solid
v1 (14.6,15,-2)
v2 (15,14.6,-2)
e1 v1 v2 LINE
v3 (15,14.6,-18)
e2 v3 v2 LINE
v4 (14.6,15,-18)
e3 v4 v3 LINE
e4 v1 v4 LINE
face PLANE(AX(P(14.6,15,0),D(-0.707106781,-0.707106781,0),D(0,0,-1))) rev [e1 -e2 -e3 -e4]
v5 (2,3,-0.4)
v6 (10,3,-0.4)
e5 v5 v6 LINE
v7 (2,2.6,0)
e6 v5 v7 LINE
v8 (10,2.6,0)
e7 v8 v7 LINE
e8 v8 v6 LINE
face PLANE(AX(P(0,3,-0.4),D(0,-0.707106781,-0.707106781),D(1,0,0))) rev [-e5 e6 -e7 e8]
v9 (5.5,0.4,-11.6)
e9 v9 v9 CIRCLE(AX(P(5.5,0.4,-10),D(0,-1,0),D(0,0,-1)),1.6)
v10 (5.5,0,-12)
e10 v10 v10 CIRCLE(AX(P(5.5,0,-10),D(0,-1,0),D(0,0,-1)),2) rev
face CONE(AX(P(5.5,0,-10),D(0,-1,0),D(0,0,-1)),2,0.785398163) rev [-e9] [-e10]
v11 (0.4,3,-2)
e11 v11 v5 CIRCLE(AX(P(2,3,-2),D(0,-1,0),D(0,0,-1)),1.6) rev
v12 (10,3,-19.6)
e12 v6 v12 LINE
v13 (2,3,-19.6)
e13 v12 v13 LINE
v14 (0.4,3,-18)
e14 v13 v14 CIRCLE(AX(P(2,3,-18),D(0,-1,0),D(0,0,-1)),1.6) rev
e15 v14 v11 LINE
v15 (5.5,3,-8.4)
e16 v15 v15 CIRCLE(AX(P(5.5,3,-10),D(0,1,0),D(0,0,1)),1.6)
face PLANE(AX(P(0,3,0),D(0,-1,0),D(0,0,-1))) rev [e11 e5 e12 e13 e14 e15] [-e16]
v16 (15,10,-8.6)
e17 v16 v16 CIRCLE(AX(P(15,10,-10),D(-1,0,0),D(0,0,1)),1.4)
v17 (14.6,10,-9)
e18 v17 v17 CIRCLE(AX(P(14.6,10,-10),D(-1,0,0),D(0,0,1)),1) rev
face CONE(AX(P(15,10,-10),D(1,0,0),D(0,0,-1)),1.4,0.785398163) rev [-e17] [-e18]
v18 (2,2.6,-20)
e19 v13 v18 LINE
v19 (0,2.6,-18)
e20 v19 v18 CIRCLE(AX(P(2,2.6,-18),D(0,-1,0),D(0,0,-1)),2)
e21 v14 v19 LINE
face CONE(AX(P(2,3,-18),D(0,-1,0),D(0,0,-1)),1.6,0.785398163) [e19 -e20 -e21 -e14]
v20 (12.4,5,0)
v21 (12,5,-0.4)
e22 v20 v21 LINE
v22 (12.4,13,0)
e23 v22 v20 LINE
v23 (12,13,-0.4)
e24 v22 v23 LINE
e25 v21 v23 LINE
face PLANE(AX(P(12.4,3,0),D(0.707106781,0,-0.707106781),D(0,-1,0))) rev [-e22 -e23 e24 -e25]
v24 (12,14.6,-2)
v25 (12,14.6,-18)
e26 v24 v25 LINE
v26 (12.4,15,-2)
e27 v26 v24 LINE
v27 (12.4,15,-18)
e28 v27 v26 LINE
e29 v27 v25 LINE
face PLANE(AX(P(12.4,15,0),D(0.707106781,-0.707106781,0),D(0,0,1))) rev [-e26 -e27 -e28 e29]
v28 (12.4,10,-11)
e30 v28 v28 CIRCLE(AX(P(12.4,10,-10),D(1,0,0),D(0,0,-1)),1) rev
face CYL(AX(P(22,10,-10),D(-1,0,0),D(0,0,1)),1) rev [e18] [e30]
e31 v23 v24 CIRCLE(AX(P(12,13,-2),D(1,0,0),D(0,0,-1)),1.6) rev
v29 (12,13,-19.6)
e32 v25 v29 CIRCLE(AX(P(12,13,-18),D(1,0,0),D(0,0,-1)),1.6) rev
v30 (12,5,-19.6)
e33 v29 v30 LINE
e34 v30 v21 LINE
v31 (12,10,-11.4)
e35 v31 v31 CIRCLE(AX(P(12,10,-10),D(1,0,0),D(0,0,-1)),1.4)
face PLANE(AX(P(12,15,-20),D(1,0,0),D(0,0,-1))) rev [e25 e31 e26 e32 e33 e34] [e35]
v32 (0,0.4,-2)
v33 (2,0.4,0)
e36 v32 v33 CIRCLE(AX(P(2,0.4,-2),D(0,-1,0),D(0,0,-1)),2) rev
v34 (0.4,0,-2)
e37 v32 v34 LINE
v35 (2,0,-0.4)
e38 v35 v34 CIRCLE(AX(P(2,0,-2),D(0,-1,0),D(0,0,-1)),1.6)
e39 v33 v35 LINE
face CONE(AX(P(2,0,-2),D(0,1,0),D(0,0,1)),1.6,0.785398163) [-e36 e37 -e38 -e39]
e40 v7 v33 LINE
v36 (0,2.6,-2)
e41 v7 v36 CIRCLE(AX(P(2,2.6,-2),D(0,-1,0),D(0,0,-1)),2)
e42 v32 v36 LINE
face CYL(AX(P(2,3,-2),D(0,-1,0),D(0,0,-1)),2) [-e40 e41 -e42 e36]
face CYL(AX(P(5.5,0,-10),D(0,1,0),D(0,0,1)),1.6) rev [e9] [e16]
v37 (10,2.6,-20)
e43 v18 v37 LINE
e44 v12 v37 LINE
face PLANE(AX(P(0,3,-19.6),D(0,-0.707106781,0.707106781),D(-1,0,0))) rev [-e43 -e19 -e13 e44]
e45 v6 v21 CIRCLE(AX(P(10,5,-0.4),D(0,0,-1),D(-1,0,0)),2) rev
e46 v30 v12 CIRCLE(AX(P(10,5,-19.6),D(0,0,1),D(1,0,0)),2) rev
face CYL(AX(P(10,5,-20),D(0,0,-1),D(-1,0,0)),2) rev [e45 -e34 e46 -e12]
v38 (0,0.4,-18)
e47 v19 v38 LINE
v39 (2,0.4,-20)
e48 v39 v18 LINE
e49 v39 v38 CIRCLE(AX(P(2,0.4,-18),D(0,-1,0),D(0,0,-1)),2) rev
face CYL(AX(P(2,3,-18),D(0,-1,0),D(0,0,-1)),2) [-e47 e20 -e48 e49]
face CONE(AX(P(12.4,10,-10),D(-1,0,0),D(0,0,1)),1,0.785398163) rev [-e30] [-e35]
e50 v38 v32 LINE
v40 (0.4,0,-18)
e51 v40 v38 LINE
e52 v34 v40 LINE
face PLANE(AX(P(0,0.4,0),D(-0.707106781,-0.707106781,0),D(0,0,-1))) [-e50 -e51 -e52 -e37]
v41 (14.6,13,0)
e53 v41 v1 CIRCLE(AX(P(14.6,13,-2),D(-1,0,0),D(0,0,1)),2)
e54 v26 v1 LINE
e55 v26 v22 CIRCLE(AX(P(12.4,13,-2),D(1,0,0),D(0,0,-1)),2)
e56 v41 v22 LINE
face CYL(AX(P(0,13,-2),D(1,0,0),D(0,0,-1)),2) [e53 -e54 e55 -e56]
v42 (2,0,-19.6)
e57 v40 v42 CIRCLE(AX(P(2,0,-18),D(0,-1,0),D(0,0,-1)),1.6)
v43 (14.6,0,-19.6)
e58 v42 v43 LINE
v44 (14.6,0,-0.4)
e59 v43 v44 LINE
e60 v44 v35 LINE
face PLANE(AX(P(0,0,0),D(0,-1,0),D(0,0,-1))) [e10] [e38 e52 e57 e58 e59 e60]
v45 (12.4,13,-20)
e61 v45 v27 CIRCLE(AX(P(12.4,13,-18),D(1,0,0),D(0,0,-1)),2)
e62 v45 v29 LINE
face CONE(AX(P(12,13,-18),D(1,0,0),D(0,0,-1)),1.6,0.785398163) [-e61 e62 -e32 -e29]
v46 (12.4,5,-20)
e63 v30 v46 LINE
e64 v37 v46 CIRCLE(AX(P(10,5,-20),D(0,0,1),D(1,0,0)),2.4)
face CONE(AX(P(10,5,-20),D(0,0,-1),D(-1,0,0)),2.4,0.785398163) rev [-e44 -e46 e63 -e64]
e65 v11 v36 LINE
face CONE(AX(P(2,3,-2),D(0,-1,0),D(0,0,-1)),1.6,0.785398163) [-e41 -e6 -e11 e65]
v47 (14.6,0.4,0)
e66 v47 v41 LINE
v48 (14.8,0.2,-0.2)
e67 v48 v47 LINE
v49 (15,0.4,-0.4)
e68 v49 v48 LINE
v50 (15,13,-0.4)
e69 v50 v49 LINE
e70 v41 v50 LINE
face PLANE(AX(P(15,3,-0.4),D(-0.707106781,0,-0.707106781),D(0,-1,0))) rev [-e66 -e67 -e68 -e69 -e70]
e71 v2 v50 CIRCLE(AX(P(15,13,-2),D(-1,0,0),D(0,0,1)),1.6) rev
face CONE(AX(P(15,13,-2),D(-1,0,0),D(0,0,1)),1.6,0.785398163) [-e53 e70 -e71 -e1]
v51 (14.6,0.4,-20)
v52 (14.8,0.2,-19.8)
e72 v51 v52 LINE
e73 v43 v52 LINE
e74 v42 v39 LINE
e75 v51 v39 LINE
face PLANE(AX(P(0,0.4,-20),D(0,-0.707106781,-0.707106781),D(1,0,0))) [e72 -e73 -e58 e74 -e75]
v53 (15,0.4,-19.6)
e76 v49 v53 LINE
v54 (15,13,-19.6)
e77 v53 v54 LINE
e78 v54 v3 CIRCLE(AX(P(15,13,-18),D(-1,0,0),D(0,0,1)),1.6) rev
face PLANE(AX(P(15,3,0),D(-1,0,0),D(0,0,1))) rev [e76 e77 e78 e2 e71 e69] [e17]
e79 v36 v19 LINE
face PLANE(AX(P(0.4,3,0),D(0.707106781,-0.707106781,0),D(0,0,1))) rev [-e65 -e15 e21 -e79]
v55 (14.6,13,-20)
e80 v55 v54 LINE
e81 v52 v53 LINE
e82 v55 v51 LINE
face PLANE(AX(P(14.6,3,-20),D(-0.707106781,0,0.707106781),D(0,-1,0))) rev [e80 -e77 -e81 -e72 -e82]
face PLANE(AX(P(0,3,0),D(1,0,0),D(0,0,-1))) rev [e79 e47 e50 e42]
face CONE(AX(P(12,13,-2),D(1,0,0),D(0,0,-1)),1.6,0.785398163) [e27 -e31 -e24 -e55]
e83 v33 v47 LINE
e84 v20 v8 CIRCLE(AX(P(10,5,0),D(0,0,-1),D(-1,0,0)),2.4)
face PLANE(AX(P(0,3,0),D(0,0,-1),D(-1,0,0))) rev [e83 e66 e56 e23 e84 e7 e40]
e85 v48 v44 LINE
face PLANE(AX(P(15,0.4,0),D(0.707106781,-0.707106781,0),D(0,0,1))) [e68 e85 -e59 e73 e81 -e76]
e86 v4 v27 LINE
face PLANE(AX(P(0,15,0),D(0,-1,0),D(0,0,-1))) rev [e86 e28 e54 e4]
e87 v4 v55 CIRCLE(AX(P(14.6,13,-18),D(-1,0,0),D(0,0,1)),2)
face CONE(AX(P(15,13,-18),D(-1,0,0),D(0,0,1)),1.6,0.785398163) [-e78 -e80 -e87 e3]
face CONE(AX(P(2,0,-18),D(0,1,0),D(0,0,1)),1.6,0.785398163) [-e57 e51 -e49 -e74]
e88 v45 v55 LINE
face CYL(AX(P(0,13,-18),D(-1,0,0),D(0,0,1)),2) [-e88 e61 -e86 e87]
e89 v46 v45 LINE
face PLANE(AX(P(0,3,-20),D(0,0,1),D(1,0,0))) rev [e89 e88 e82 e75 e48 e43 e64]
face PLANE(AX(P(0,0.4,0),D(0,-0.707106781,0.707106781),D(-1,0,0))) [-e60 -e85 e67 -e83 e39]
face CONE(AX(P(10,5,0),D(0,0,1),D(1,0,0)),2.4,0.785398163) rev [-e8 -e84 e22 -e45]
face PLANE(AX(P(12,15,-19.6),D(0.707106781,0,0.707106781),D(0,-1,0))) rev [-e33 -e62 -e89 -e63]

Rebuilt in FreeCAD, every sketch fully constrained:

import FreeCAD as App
import Part
import Sketcher
from FreeCAD import Vector
Q = App.Units.Quantity


def edges_at(feature, points):
    """Names of the edges that pass closest to the given points."""
    edges = feature.Shape.Edges
    near = lambda p: min(range(len(edges)), key=lambda i: edges[i].distToShape(Part.Vertex(*p))[0])
    return sorted({f"Edge{near(p) + 1}" for p in points})

doc = App.newDocument("Part")
body = doc.addObject("PartDesign::Body", "Body")

sketch1 = body.newObject("Sketcher::SketchObject", "Sketch")
sketch1.AttachmentSupport = (doc.getObject("XZ_Plane"), [""])
sketch1.MapMode = "FlatFace"
sketch1.addGeometry([
    Part.LineSegment(Vector(0, -20, 0), Vector(0, 0, 0)),
    Part.LineSegment(Vector(0, 0, 0), Vector(15, 0, 0)),
    Part.LineSegment(Vector(15, 0, 0), Vector(15, -20, 0)),
    Part.LineSegment(Vector(15, -20, 0), Vector(0, -20, 0)),
], False)
sketch1.addConstraint([
    Sketcher.Constraint("Coincident", 0, 2, 1, 1),
    Sketcher.Constraint("Coincident", 1, 2, 2, 1),
    Sketcher.Constraint("Coincident", 2, 2, 3, 1),
    Sketcher.Constraint("Coincident", 3, 2, 0, 1),
    Sketcher.Constraint("Vertical", 0),
    Sketcher.Constraint("Horizontal", 1),
    Sketcher.Constraint("Vertical", 2),
    Sketcher.Constraint("Horizontal", 3),
    Sketcher.Constraint("Coincident", 0, 2, -1, 1),
    Sketcher.Constraint("DistanceX", 1, 1, 1, 2, Q("15 mm")),
    Sketcher.Constraint("DistanceY", 0, 1, 0, 2, Q("20 mm")),
])
pad1 = body.newObject("PartDesign::Pad", "Pad")
pad1.Profile = sketch1
pad1.Length = 3
pad1.Reversed = True

sketch2 = body.newObject("Sketcher::SketchObject", "Sketch001")
sketch2.AttachmentSupport = (doc.getObject("XZ_Plane"), [""])
sketch2.MapMode = "FlatFace"
sketch2.AttachmentOffset = App.Placement(Vector(0, 0, -3), App.Rotation())
sketch2.addGeometry(Part.Circle(Vector(5.5, -10, 0), Vector(0, 0, 1), 1.6), False)
sketch2.addConstraint([
    Sketcher.Constraint("Diameter", 0, Q("3.2 mm")),
    Sketcher.Constraint("DistanceY", 0, 3, -1, 1, Q("10 mm")),
    Sketcher.Constraint("DistanceX", -1, 1, 0, 3, Q("5.5 mm")),
])
pocket1 = body.newObject("PartDesign::Pocket", "Pocket")
pocket1.Profile = sketch2
pocket1.Length = 3
pocket1.Reversed = True

sketch3 = body.newObject("Sketcher::SketchObject", "Sketch002")
sketch3.AttachmentSupport = (doc.getObject("XZ_Plane"), [""])
sketch3.MapMode = "FlatFace"
sketch3.AttachmentOffset = App.Placement(Vector(0, 0, -3), App.Rotation())
sketch3.addGeometry([
    Part.LineSegment(Vector(12, -20, 0), Vector(12, 0, 0)),
    Part.LineSegment(Vector(12, 0, 0), Vector(15, 0, 0)),
    Part.LineSegment(Vector(15, 0, 0), Vector(15, -20, 0)),
    Part.LineSegment(Vector(15, -20, 0), Vector(12, -20, 0)),
], False)
sketch3.addConstraint([
    Sketcher.Constraint("Coincident", 0, 2, 1, 1),
    Sketcher.Constraint("Coincident", 1, 2, 2, 1),
    Sketcher.Constraint("Coincident", 2, 2, 3, 1),
    Sketcher.Constraint("Coincident", 3, 2, 0, 1),
    Sketcher.Constraint("Vertical", 0),
    Sketcher.Constraint("Horizontal", 1),
    Sketcher.Constraint("Vertical", 2),
    Sketcher.Constraint("Horizontal", 3),
    Sketcher.Constraint("PointOnObject", 0, 2, -1),
    Sketcher.Constraint("DistanceX", 1, 1, 1, 2, Q("3 mm")),
    Sketcher.Constraint("DistanceY", 0, 1, 0, 2, Q("20 mm")),
    Sketcher.Constraint("DistanceX", -1, 1, 0, 2, Q("12 mm")),
])
pad2 = body.newObject("PartDesign::Pad", "Pad001")
pad2.Profile = sketch3
pad2.Length = 12
pad2.Reversed = True
doc.recompute()

fillet = body.newObject("PartDesign::Fillet", "Fillet")
fillet.Base = (pad2, edges_at(pad2, [(12, 3, -10)]))
fillet.Radius = 2

sketch4 = body.newObject("Sketcher::SketchObject", "Sketch003")
sketch4.AttachmentSupport = (doc.getObject("YZ_Plane"), [""])
sketch4.MapMode = "FlatFace"
sketch4.AttachmentOffset = App.Placement(Vector(0, 0, 12), App.Rotation())
sketch4.addGeometry(Part.Circle(Vector(10, -10, 0), Vector(0, 0, 1), 1), False)
sketch4.addConstraint([
    Sketcher.Constraint("Diameter", 0, Q("2 mm")),
    Sketcher.Constraint("DistanceX", -1, 1, 0, 3, Q("10 mm")),
    Sketcher.Constraint("DistanceY", 0, 3, -1, 1, Q("10 mm")),
])
pocket2 = body.newObject("PartDesign::Pocket", "Pocket001")
pocket2.Profile = sketch4
pocket2.Length = 10
pocket2.Reversed = True
doc.recompute()

fillet2 = body.newObject("PartDesign::Fillet", "Fillet001")
fillet2.Base = (pocket2, edges_at(pocket2, [
    (13.5, 15, -20),
    (13.5, 15, 0),
    (0, 1.5, -20),
    (0, 1.5, 0),
]))
fillet2.Radius = 2
doc.recompute()

chamfer = body.newObject("PartDesign::Chamfer", "Chamfer")
chamfer.Base = (fillet2, edges_at(fillet2, [
    (5.5, 0, -11.6),
    (8.5, 0, -20),
    (8.5, 0, 0),
    (15, 0, -10),
    (0, 0, -10),
    (0.586, 0, -19.414),
    (0.586, 0, -0.586),
]))
chamfer.Size = 0.4
doc.recompute()

chamfer2 = body.newObject("PartDesign::Chamfer", "Chamfer001")
chamfer2.Base = (chamfer, edges_at(chamfer, [
    (15, 15, -10),
    (15, 6.7, -20),
    (15, 6.7, 0),
    (15, 14.414, -0.586),
    (15, 14.414, -19.414),
]))
chamfer2.Size = 0.4
doc.recompute()

chamfer3 = body.newObject("PartDesign::Chamfer", "Chamfer002")
chamfer3.Base = (chamfer2, edges_at(chamfer2, [
    (6, 3, -20),
    (11.414, 3.586, 0),
    (11.414, 3.586, -20),
    (15, 10, -11),
    (12, 10, -11),
    (12, 15, -10),
    (12, 9, -20),
    (12, 9, 0),
    (12, 14.414, -0.586),
    (12, 14.414, -19.414),
    (6, 3, 0),
    (0, 3, -10),
    (0.586, 3, -19.414),
    (0.586, 3, -0.586),
]))
chamfer3.Size = 0.4

doc.recompute()
